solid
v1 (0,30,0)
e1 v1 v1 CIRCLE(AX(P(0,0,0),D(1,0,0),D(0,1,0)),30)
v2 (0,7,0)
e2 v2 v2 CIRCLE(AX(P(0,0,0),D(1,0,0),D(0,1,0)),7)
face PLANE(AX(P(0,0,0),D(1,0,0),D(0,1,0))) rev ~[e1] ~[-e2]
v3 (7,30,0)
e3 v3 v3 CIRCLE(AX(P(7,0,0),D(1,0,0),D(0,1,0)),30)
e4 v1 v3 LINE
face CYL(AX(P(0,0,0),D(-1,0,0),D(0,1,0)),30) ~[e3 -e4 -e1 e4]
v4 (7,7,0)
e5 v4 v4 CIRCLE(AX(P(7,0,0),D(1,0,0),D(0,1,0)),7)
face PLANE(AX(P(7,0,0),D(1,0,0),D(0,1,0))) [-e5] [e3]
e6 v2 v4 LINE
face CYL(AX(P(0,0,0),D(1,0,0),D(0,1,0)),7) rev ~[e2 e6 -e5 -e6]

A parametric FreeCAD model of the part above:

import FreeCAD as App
import Part
import Sketcher
from FreeCAD import Vector

doc = App.newDocument("Part")
body = doc.addObject("PartDesign::Body", "Body")

sketch1 = body.newObject("Sketcher::SketchObject", "Sketch")
sketch1.AttachmentSupport = (doc.getObject("YZ_Plane"), [""])
sketch1.MapMode = "FlatFace"
sketch1.addGeometry(Part.Circle(Vector(0, 0, 0), Vector(0, 0, 1), 30), False)
sketch1.addConstraint(Sketcher.Constraint("Coincident", 0, 3, -1, 1))
sketch1.addConstraint(Sketcher.Constraint("Diameter", 0, 60.0))
pad1 = body.newObject("PartDesign::Pad", "Pad")
pad1.Profile = sketch1
pad1.Length = 7

sketch2 = body.newObject("Sketcher::SketchObject", "Sketch001")
sketch2.AttachmentSupport = (doc.getObject("YZ_Plane"), [""])
sketch2.MapMode = "FlatFace"
sketch2.addGeometry(Part.Circle(Vector(0, 0, 0), Vector(0, 0, 1), 7), False)
sketch2.addConstraint(Sketcher.Constraint("Coincident", 0, 3, -1, 1))
sketch2.addConstraint(Sketcher.Constraint("Diameter", 0, 14.0))
pocket1 = body.newObject("PartDesign::Pocket", "Pocket")
pocket1.Profile = sketch2
pocket1.Length = 15
pocket1.Midplane = True

doc.recompute()
